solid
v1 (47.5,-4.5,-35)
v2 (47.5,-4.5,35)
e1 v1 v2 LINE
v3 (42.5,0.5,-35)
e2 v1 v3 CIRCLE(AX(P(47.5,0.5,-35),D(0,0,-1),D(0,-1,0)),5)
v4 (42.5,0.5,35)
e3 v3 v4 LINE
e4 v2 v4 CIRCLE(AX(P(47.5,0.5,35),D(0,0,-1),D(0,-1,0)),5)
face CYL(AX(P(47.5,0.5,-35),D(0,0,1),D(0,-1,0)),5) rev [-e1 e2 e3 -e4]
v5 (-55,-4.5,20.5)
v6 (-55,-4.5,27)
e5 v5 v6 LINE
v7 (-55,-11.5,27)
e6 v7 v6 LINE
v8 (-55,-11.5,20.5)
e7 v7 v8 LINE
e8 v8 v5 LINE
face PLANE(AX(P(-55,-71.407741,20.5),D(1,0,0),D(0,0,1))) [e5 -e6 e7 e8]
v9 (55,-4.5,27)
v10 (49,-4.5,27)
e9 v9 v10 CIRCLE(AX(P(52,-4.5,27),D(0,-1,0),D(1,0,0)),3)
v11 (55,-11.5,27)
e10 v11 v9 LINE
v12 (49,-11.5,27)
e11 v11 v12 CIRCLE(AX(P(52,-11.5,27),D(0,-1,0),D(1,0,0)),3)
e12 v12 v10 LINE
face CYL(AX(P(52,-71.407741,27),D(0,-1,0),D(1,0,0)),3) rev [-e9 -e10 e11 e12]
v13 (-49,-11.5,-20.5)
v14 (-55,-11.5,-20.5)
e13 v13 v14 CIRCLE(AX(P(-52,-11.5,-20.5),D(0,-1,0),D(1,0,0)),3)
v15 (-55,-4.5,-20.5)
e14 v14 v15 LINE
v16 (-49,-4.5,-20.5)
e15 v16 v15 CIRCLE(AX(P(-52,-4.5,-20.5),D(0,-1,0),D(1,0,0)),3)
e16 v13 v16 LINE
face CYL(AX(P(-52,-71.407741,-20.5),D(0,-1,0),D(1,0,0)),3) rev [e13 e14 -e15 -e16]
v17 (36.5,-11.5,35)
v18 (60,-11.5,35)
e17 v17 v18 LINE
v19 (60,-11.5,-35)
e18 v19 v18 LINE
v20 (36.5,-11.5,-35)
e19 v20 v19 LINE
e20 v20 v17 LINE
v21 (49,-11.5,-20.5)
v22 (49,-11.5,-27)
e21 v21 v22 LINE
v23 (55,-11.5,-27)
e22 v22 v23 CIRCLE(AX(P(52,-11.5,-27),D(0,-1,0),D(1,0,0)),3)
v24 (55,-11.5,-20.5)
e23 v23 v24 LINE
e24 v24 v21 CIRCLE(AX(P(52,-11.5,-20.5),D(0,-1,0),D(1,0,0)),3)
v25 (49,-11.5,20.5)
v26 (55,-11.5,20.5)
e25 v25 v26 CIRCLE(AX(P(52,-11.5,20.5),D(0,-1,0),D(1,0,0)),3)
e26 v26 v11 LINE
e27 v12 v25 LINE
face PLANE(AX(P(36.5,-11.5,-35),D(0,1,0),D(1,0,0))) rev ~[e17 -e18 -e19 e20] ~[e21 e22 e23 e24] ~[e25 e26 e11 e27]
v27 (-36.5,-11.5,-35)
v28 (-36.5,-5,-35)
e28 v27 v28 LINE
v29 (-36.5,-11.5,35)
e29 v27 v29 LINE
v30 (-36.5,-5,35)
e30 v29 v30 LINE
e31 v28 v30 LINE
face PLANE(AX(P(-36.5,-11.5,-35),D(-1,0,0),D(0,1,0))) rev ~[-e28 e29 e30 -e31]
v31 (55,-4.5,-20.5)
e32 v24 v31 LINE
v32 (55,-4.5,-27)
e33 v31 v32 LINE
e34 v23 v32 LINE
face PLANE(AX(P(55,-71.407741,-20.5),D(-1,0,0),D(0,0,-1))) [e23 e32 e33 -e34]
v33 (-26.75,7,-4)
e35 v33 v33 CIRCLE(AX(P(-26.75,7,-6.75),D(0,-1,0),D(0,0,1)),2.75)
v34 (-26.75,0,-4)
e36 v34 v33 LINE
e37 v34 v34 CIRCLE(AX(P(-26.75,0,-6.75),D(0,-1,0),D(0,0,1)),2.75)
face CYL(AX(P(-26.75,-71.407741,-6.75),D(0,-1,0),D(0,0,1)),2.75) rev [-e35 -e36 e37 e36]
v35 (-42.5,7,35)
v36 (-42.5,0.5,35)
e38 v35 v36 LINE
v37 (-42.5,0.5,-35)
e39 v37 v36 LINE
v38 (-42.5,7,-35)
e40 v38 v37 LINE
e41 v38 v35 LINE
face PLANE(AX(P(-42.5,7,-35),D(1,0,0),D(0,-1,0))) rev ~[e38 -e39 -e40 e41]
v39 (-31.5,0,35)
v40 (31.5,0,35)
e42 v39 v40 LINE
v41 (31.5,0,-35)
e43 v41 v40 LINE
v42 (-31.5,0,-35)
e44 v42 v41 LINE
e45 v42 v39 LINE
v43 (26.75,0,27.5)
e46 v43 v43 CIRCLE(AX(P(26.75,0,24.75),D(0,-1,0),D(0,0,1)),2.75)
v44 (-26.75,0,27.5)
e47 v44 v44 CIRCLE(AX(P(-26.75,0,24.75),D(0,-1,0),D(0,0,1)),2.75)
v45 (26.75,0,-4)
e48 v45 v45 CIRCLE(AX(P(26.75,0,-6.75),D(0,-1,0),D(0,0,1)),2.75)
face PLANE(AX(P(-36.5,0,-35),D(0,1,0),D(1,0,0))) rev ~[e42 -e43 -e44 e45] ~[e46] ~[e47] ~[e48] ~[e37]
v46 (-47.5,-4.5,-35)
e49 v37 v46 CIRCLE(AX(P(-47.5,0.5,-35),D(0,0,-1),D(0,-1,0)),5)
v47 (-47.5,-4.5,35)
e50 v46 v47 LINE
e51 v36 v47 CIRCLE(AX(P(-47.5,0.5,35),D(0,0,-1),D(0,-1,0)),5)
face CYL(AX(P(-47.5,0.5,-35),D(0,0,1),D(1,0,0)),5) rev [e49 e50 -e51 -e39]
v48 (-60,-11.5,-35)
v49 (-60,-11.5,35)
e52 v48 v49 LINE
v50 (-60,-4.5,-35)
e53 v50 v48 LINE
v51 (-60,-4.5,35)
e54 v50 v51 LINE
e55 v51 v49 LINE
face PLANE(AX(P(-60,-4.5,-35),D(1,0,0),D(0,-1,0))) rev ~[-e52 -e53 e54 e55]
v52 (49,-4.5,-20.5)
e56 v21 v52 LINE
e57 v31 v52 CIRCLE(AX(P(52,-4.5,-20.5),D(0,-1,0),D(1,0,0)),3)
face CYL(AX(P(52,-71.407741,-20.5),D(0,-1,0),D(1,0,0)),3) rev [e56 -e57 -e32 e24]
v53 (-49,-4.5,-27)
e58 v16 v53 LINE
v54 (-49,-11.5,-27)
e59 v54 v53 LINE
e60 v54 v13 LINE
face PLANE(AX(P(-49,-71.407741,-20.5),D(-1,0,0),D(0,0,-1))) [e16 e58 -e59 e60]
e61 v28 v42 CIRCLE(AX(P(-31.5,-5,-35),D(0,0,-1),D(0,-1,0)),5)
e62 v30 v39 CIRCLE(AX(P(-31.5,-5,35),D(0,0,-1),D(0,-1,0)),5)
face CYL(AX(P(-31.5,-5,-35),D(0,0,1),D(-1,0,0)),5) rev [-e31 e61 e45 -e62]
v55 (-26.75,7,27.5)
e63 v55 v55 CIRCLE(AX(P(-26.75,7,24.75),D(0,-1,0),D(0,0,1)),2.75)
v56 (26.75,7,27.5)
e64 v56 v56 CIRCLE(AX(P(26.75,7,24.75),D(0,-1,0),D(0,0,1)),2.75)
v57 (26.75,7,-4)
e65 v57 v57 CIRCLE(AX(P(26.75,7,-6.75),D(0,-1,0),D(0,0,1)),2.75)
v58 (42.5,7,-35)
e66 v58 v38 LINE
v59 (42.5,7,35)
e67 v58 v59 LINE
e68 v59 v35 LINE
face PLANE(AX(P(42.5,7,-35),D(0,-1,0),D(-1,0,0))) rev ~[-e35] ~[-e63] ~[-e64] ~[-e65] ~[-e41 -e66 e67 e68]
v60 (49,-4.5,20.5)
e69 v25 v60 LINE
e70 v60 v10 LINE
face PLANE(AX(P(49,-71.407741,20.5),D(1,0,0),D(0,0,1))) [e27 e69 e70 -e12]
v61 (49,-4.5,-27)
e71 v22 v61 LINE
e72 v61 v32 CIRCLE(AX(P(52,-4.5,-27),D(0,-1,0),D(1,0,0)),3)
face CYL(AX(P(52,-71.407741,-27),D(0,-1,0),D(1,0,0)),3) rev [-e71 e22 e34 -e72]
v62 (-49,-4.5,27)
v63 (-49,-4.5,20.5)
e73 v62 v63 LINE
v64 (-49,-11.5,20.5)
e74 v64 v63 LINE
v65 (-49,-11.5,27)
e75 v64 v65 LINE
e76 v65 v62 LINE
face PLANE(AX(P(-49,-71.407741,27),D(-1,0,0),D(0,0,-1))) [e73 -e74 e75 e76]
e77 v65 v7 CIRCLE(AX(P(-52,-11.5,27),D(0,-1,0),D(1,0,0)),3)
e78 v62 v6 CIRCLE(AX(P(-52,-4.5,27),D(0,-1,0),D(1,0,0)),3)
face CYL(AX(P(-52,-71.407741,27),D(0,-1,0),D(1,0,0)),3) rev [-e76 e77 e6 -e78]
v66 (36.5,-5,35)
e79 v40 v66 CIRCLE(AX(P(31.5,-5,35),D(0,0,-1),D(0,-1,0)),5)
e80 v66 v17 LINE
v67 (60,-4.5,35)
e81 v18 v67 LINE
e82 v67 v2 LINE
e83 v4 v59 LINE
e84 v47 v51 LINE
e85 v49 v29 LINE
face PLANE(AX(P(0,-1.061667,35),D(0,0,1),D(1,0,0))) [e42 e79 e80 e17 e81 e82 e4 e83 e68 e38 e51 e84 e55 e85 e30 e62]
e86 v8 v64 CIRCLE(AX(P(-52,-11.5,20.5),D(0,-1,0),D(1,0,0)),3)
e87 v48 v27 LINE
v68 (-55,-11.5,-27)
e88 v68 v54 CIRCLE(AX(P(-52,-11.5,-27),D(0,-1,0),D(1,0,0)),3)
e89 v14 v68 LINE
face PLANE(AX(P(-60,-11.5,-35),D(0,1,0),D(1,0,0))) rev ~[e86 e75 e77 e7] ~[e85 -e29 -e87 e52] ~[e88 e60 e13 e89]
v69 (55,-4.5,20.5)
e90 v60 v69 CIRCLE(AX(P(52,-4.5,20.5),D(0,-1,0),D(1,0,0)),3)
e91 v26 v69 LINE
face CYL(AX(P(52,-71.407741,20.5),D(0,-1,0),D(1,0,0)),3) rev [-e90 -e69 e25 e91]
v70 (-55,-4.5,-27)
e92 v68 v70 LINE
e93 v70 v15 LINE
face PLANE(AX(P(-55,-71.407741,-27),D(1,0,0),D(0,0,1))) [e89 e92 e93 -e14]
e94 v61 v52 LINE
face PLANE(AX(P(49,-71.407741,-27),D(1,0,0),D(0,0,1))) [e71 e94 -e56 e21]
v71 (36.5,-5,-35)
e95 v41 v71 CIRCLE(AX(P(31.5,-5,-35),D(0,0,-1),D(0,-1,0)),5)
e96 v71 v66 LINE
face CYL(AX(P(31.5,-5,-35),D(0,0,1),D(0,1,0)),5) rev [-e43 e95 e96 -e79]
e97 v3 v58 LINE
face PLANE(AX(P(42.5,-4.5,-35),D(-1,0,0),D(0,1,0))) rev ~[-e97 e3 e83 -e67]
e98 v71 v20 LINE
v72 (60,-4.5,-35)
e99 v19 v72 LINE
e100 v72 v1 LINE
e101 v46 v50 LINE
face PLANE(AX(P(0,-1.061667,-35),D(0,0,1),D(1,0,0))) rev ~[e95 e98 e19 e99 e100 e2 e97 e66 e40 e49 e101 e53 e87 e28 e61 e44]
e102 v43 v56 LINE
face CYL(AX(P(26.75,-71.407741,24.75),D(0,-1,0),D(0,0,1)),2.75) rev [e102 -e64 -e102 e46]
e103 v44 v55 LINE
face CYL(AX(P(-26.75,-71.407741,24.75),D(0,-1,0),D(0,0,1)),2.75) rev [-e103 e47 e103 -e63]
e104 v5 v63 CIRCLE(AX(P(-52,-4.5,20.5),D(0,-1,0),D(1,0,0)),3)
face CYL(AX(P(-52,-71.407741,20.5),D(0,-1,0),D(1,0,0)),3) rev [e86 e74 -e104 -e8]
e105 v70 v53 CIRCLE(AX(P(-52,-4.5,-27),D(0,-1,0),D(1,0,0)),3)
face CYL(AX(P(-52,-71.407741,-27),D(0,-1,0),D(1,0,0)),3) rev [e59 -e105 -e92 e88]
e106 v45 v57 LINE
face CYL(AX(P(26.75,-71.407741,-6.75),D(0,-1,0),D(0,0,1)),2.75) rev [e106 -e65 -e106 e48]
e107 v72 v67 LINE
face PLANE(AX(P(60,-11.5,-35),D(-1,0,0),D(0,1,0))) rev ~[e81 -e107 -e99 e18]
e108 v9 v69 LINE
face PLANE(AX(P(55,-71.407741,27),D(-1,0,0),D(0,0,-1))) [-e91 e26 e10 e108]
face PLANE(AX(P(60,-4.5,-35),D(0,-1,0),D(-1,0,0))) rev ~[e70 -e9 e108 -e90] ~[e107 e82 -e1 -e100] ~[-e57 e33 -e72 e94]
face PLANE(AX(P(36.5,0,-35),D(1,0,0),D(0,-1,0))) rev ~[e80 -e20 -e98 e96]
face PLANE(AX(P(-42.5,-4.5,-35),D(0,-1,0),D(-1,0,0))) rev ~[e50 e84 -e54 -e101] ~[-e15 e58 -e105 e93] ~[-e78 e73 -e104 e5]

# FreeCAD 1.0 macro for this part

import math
import FreeCAD as App
import Part
import Sketcher
from FreeCAD import Vector


def edges_at(feature, points):
    """Names of the edges that pass closest to the given points."""
    edges = feature.Shape.Edges
    near = lambda p: min(range(len(edges)), key=lambda i: edges[i].distToShape(Part.Vertex(*p))[0])
    return sorted({f"Edge{near(p) + 1}" for p in points})

doc = App.newDocument("Part")
body = doc.addObject("PartDesign::Body", "Body")

sketch1 = doc.addObject("Sketcher::SketchObject", "Sketch")
body.addObject(sketch1)
sketch1.AttachmentSupport = (doc.XY_Plane, [""])
sketch1.MapMode = "FlatFace"
sketch1.addGeometry(Part.LineSegment(Vector(-60, -12, 0), Vector(-36, -12, 0)), False)
sketch1.addGeometry(Part.LineSegment(Vector(-36, -12, 0), Vector(-36, 0, 0)), False)
sketch1.addGeometry(Part.LineSegment(Vector(-36, 0, 0), Vector(36, 0, 0)), False)
sketch1.addGeometry(Part.LineSegment(Vector(36, 0, 0), Vector(36, -12, 0)), False)
sketch1.addGeometry(Part.LineSegment(Vector(36, -12, 0), Vector(60, -12, 0)), False)
sketch1.addGeometry(Part.LineSegment(Vector(60, -12, 0), Vector(60, -4, 0)), False)
sketch1.addGeometry(Part.LineSegment(Vector(60, -4, 0), Vector(42, -4, 0)), False)
sketch1.addGeometry(Part.LineSegment(Vector(42, -4, 0), Vector(42, 7, 0)), False)
sketch1.addGeometry(Part.LineSegment(Vector(42, 7, 0), Vector(-42, 7, 0)), False)
sketch1.addGeometry(Part.LineSegment(Vector(-42, 7, 0), Vector(-42, -4, 0)), False)
sketch1.addGeometry(Part.LineSegment(Vector(-42, -4, 0), Vector(-60, -4, 0)), False)
sketch1.addGeometry(Part.LineSegment(Vector(-60, -4, 0), Vector(-60, -12, 0)), False)
sketch1.addConstraint(Sketcher.Constraint("Coincident", 0, 2, 1, 1))
sketch1.addConstraint(Sketcher.Constraint("Coincident", 1, 2, 2, 1))
sketch1.addConstraint(Sketcher.Constraint("Coincident", 2, 2, 3, 1))
sketch1.addConstraint(Sketcher.Constraint("Coincident", 3, 2, 4, 1))
sketch1.addConstraint(Sketcher.Constraint("Coincident", 4, 2, 5, 1))
sketch1.addConstraint(Sketcher.Constraint("Coincident", 5, 2, 6, 1))
sketch1.addConstraint(Sketcher.Constraint("Coincident", 6, 2, 7, 1))
sketch1.addConstraint(Sketcher.Constraint("Coincident", 7, 2, 8, 1))
sketch1.addConstraint(Sketcher.Constraint("Coincident", 8, 2, 9, 1))
sketch1.addConstraint(Sketcher.Constraint("Coincident", 9, 2, 10, 1))
sketch1.addConstraint(Sketcher.Constraint("Coincident", 10, 2, 11, 1))
sketch1.addConstraint(Sketcher.Constraint("Coincident", 11, 2, 0, 1))
sketch1.addConstraint(Sketcher.Constraint("Horizontal", 0))
sketch1.addConstraint(Sketcher.Constraint("Vertical", 1))
sketch1.addConstraint(Sketcher.Constraint("Horizontal", 2))
sketch1.addConstraint(Sketcher.Constraint("Vertical", 3))
sketch1.addConstraint(Sketcher.Constraint("Horizontal", 4))
sketch1.addConstraint(Sketcher.Constraint("Vertical", 5))
sketch1.addConstraint(Sketcher.Constraint("Horizontal", 6))
sketch1.addConstraint(Sketcher.Constraint("Vertical", 7))
sketch1.addConstraint(Sketcher.Constraint("Horizontal", 8))
sketch1.addConstraint(Sketcher.Constraint("Vertical", 9))
sketch1.addConstraint(Sketcher.Constraint("Horizontal", 10))
sketch1.addConstraint(Sketcher.Constraint("Vertical", 11))
sketch1.addConstraint(Sketcher.Constraint("Symmetric", 1, 2, 2, 2, -1, 1))
sketch1.addConstraint(Sketcher.Constraint("Symmetric", 6, 2, 9, 2, -2))
sketch1.addConstraint(Sketcher.Constraint("Symmetric", 4, 2, 11, 2, -2))
sketch1.addConstraint(Sketcher.Constraint("Equal", 3, 7))
sketch1.addConstraint(Sketcher.Constraint("DistanceX", 2, 1, 2, 2, 73.0))
sketch1.addConstraint(Sketcher.Constraint("DistanceX", 8, 2, 8, 1, 85.0))
sketch1.addConstraint(Sketcher.Constraint("DistanceY", 5, 1, 5, 2, 7.0))
sketch1.addConstraint(Sketcher.Constraint("DistanceX", 0, 1, 0, 2, 23.5))
sketch1.addConstraint(Sketcher.Constraint("DistanceY", 1, 1, 1, 2, 11.5))
pad1 = doc.addObject("PartDesign::Pad", "Pad")
body.addObject(pad1)
pad1.Profile = sketch1
pad1.Type = "TwoLengths"
pad1.Length = 35
pad1.Length2 = 35
doc.recompute()

fillet = doc.addObject("PartDesign::Fillet", "Fillet")
body.addObject(fillet)
fillet.Base = (pad1, edges_at(pad1, [
    (-42.5, -4.5, 0),
    (42.5, -4.5, 0),
    (36.5, 0, 0),
    (-36.5, 0, 0),
]))
fillet.Radius = 5

sketch2 = doc.addObject("Sketcher::SketchObject", "Sketch001")
body.addObject(sketch2)
sketch2.AttachmentSupport = (doc.XZ_Plane, [""])
sketch2.MapMode = "FlatFace"
sketch2.addGeometry(Part.ArcOfCircle(Part.Circle(Vector(-52, -27, 0), Vector(0, 0, 1), 3), math.radians(180), math.radians(360)), False)
sketch2.addGeometry(Part.LineSegment(Vector(-55, -27, 0), Vector(-55, -20.5, 0)), False)
sketch2.addGeometry(Part.ArcOfCircle(Part.Circle(Vector(-52, -20.5, 0), Vector(0, 0, 1), 3), math.radians(0), math.radians(180)), False)
sketch2.addGeometry(Part.LineSegment(Vector(-49, -20.5, 0), Vector(-49, -27, 0)), False)
sketch2.addGeometry(Part.ArcOfCircle(Part.Circle(Vector(-52, 20.5, 0), Vector(0, 0, 1), 3), math.radians(180), math.radians(360)), False)
sketch2.addGeometry(Part.LineSegment(Vector(-55, 20.5, 0), Vector(-55, 27, 0)), False)
sketch2.addGeometry(Part.ArcOfCircle(Part.Circle(Vector(-52, 27, 0), Vector(0, 0, 1), 3), math.radians(0), math.radians(180)), False)
sketch2.addGeometry(Part.LineSegment(Vector(-49, 27, 0), Vector(-49, 20.5, 0)), False)
sketch2.addGeometry(Part.ArcOfCircle(Part.Circle(Vector(52, 20.5, 0), Vector(0, 0, 1), 3), math.radians(180), math.radians(360)), False)
sketch2.addGeometry(Part.LineSegment(Vector(49, 20.5, 0), Vector(49, 27, 0)), False)
sketch2.addGeometry(Part.ArcOfCircle(Part.Circle(Vector(52, 27, 0), Vector(0, 0, 1), 3), math.radians(0), math.radians(180)), False)
sketch2.addGeometry(Part.LineSegment(Vector(55, 27, 0), Vector(55, 20.5, 0)), False)
sketch2.addGeometry(Part.ArcOfCircle(Part.Circle(Vector(52, -27, 0), Vector(0, 0, 1), 3), math.radians(180), math.radians(360)), False)
sketch2.addGeometry(Part.LineSegment(Vector(49, -27, 0), Vector(49, -20.5, 0)), False)
sketch2.addGeometry(Part.ArcOfCircle(Part.Circle(Vector(52, -20.5, 0), Vector(0, 0, 1), 3), math.radians(0), math.radians(180)), False)
sketch2.addGeometry(Part.LineSegment(Vector(55, -20.5, 0), Vector(55, -27, 0)), False)
sketch2.addGeometry(Part.Circle(Vector(-26.8, -6.8, 0), Vector(0, 0, 1), 2.8), False)
sketch2.addGeometry(Part.Circle(Vector(26.8, -6.8, 0), Vector(0, 0, 1), 2.8), False)
sketch2.addGeometry(Part.Circle(Vector(26.8, 24.8, 0), Vector(0, 0, 1), 2.8), False)
sketch2.addGeometry(Part.Circle(Vector(-26.8, 24.8, 0), Vector(0, 0, 1), 2.8), False)
sketch2.addConstraint(Sketcher.Constraint("Tangent", 0, 1, 1, 1))
sketch2.addConstraint(Sketcher.Constraint("Tangent", 1, 2, 2, 2))
sketch2.addConstraint(Sketcher.Constraint("Tangent", 2, 1, 3, 1))
sketch2.addConstraint(Sketcher.Constraint("Tangent", 3, 2, 0, 2))
sketch2.addConstraint(Sketcher.Constraint("Tangent", 4, 1, 5, 1))
sketch2.addConstraint(Sketcher.Constraint("Tangent", 5, 2, 6, 2))
sketch2.addConstraint(Sketcher.Constraint("Tangent", 6, 1, 7, 1))
sketch2.addConstraint(Sketcher.Constraint("Tangent", 7, 2, 4, 2))
sketch2.addConstraint(Sketcher.Constraint("Tangent", 8, 1, 9, 1))
sketch2.addConstraint(Sketcher.Constraint("Tangent", 9, 2, 10, 2))
sketch2.addConstraint(Sketcher.Constraint("Tangent", 10, 1, 11, 1))
sketch2.addConstraint(Sketcher.Constraint("Tangent", 11, 2, 8, 2))
sketch2.addConstraint(Sketcher.Constraint("Tangent", 12, 1, 13, 1))
sketch2.addConstraint(Sketcher.Constraint("Tangent", 13, 2, 14, 2))
sketch2.addConstraint(Sketcher.Constraint("Tangent", 14, 1, 15, 1))
sketch2.addConstraint(Sketcher.Constraint("Tangent", 15, 2, 12, 2))
sketch2.addConstraint(Sketcher.Constraint("Vertical", 1))
sketch2.addConstraint(Sketcher.Constraint("Vertical", 3))
sketch2.addConstraint(Sketcher.Constraint("Vertical", 5))
sketch2.addConstraint(Sketcher.Constraint("Vertical", 7))
sketch2.addConstraint(Sketcher.Constraint("Vertical", 9))
sketch2.addConstraint(Sketcher.Constraint("Vertical", 11))
sketch2.addConstraint(Sketcher.Constraint("Vertical", 13))
sketch2.addConstraint(Sketcher.Constraint("Vertical", 15))
sketch2.addConstraint(Sketcher.Constraint("Equal", 2, 4))
sketch2.addConstraint(Sketcher.Constraint("Equal", 6, 8))
sketch2.addConstraint(Sketcher.Constraint("Equal", 10, 12))
sketch2.addConstraint(Sketcher.Constraint("Equal", 16, 17))
sketch2.addConstraint(Sketcher.Constraint("Equal", 17, 18))
sketch2.addConstraint(Sketcher.Constraint("Equal", 18, 19))
sketch2.addConstraint(Sketcher.Constraint("Symmetric", 2, 3, 8, 3, -1, 1))
sketch2.addConstraint(Sketcher.Constraint("Symmetric", 6, 3, 12, 3, -1, 1))
sketch2.addConstraint(Sketcher.Constraint("Symmetric", 4, 3, 8, 3, -2))
sketch2.addConstraint(Sketcher.Constraint("Symmetric", 16, 3, 17, 3, -2))
sketch2.addConstraint(Sketcher.Constraint("Symmetric", 18, 3, 19, 3, -2))
sketch2.addConstraint(Sketcher.Constraint("Horizontal", 6, 3, 10, 3))
sketch2.addConstraint(Sketcher.Constraint("Horizontal", 0, 3, 12, 3))
sketch2.addConstraint(Sketcher.Constraint("Horizontal", 2, 3, 14, 3))
sketch2.addConstraint(Sketcher.Constraint("Vertical", 17, 3, 18, 3))
sketch2.addConstraint(Sketcher.Constraint("Radius", 0, 3.0))
sketch2.addConstraint(Sketcher.Constraint("Diameter", 16, 5.5))
sketch2.addConstraint(Sketcher.Constraint("DistanceY", 1, 1, 1, 2, 6.5))
sketch2.addConstraint(Sketcher.Constraint("DistanceX", 0, 3, -1, 1, 52.0))
sketch2.addConstraint(Sketcher.Constraint("DistanceY", 0, 3, -1, 1, 27.0))
sketch2.addConstraint(Sketcher.Constraint("DistanceX", 16, 3, 17, 3, 53.5))
sketch2.addConstraint(Sketcher.Constraint("DistanceY", 17, 3, 18, 3, 31.5))
sketch2.addConstraint(Sketcher.Constraint("DistanceY", 16, 3, -1, 1, 6.75))
pocket1 = doc.addObject("PartDesign::Pocket", "Pocket")
body.addObject(pocket1)
pocket1.Profile = sketch2
pocket1.Type = "ThroughAll"
pocket1.Midplane = True

doc.recompute()
